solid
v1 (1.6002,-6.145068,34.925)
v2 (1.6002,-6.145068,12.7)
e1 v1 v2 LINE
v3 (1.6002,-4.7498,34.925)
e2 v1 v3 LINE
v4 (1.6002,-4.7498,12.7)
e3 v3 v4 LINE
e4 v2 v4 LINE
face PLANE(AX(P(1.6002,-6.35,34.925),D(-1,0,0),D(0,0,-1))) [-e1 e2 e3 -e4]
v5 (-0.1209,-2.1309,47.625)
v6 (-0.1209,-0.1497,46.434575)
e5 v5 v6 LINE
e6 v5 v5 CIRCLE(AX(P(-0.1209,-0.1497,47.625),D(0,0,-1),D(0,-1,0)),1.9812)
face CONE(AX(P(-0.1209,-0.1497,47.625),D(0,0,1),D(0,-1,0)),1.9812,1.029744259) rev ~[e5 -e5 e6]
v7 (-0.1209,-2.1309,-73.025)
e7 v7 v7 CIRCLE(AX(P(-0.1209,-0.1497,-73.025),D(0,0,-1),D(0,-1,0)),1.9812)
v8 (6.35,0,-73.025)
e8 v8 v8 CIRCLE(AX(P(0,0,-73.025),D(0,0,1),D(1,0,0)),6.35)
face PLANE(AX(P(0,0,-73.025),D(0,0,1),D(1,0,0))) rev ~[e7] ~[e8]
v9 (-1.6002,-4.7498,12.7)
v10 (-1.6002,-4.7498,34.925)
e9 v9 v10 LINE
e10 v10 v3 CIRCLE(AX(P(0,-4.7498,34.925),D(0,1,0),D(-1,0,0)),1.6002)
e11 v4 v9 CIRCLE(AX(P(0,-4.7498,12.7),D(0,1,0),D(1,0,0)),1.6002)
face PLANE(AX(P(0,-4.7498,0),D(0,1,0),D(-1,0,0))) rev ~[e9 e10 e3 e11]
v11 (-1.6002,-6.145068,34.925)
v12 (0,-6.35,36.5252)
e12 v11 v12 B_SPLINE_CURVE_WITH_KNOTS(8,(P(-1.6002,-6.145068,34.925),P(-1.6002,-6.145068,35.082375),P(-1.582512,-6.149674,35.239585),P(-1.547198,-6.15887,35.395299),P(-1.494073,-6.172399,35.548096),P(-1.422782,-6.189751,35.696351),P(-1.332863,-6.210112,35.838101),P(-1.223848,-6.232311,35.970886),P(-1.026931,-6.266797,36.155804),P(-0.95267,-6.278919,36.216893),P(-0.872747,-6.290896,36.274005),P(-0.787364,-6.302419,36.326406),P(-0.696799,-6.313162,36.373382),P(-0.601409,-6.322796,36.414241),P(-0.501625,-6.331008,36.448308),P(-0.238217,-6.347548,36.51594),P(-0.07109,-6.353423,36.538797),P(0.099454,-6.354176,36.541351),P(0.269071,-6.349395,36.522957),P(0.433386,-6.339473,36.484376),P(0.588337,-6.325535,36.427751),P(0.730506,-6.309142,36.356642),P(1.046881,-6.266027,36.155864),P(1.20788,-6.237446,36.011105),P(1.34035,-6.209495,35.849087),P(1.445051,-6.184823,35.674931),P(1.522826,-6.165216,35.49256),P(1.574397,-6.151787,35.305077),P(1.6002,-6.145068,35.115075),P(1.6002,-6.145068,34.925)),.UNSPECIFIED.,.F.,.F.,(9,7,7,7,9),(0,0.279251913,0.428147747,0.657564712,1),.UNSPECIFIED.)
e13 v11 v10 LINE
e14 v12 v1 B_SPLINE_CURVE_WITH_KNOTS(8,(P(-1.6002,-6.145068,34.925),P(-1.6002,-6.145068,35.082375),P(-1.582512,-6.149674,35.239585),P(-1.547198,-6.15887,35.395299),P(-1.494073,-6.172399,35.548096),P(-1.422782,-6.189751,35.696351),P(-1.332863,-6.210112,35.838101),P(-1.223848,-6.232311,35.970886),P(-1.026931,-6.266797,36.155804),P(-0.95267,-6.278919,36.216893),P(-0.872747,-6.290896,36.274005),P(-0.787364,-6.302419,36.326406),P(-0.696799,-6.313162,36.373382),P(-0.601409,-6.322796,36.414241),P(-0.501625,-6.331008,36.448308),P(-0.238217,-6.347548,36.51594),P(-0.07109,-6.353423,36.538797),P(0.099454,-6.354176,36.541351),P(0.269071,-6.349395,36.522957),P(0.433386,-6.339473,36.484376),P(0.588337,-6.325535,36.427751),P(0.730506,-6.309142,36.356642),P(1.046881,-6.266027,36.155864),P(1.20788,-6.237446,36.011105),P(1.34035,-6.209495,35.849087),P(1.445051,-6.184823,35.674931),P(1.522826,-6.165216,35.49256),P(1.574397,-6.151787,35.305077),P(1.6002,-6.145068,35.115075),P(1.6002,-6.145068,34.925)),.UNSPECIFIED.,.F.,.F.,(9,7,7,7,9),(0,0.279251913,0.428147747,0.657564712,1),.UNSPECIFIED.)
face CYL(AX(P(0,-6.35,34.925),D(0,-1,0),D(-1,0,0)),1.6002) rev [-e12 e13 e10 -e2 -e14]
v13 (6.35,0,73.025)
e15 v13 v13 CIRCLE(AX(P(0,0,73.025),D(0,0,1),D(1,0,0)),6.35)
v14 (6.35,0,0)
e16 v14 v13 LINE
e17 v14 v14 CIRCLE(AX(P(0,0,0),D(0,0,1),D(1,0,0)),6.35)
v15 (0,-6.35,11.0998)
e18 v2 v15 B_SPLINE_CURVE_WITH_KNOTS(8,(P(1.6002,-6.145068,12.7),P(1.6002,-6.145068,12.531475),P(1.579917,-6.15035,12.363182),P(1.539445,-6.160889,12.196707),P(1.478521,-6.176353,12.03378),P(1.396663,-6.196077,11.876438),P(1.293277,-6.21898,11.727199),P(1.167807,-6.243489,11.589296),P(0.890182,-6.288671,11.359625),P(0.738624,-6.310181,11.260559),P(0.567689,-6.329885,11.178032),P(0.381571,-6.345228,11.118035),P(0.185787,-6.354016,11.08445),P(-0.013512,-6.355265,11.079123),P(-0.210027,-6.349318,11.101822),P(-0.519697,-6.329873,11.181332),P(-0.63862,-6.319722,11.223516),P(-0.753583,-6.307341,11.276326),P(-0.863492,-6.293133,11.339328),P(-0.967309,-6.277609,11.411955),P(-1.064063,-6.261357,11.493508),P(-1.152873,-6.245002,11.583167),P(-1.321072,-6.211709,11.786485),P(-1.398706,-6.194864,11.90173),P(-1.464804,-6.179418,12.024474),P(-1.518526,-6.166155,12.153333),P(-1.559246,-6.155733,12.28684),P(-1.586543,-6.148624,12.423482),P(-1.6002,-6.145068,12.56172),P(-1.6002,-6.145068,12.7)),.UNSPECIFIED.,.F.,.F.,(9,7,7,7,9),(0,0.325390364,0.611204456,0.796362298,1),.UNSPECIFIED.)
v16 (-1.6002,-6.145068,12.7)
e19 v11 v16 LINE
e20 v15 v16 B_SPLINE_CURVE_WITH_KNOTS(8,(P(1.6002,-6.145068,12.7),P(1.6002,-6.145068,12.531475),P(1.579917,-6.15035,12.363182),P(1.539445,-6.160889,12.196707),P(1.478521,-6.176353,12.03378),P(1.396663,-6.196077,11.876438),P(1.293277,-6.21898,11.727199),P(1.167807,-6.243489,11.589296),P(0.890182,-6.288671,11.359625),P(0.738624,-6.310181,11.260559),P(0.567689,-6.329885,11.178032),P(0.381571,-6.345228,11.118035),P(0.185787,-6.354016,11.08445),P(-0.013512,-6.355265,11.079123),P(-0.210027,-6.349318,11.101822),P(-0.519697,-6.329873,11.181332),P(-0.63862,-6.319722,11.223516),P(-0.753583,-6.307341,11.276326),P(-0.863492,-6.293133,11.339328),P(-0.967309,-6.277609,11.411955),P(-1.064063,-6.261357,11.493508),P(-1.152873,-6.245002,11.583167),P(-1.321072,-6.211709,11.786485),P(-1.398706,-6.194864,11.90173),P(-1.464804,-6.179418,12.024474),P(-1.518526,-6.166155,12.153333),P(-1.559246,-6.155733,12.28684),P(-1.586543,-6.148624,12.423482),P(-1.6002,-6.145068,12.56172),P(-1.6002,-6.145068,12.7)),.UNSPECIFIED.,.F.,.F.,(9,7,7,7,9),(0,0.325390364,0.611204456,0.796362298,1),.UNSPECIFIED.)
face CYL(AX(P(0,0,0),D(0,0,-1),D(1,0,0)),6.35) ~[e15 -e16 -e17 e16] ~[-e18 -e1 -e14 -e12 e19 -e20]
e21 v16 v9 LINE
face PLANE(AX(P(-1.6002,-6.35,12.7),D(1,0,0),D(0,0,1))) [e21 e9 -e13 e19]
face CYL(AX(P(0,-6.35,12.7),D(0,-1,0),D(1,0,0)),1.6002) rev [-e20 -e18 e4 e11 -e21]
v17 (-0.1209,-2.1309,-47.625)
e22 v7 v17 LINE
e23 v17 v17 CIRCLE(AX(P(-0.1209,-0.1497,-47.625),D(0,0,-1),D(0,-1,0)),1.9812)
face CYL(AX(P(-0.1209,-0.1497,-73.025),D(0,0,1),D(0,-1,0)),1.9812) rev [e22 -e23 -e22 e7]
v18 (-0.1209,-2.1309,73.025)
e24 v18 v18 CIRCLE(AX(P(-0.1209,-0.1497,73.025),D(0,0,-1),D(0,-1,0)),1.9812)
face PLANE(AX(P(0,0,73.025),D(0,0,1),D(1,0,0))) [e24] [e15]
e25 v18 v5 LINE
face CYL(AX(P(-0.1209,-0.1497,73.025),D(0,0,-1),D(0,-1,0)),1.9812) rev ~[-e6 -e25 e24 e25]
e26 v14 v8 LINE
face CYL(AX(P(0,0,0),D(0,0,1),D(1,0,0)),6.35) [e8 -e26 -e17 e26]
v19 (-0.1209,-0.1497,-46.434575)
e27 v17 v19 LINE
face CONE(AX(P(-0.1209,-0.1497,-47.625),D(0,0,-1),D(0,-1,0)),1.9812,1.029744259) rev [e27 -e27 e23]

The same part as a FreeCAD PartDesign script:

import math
import FreeCAD as App
import Part
import Sketcher

V = App.Vector
Q = App.Units.Quantity

doc = App.newDocument("Part")
params = doc.addObject("Spreadsheet::Sheet", "Params")
for row, (alias, value) in enumerate([
    ("sketch1_diameter", "0.5 in"),
    ("pad1_length", "5.75 in"),
    ("sketch2_diameter", "0.156 in"),
    ("hole_diameter", "0.156 in"),
    ("hole_depth", "1 in"),
    ("sketch3_radius", "0.063 in"),
    ("sketch3_height", "0.875 in"),
    ("pocket1_length", "0.063 in"),
], start=1):
    params.set(f"A{row}", alias)
    params.set(f"B{row}", "=" + value)
    params.setAlias(f"B{row}", alias)

body = doc.addObject("PartDesign::Body", "Body")

# Sketch on XY plane
sketch1 = doc.addObject("Sketcher::SketchObject", "Sketch")
body.addObject(sketch1)
sketch1.AttachmentSupport = (doc.XY_Plane, [""])
sketch1.MapMode = "FlatFace"
sketch1.addGeometry(Part.Circle(V(0, 0, 0), V(0, 0, 1), 6), False)
sketch1.addConstraint([
    Sketcher.Constraint("Coincident", 0, 3, -1, 1),
    Sketcher.Constraint("Diameter", 0, Q("0.5 in")),
])
sketch1.setExpression("Constraints[1]", "Params.sketch1_diameter")
pad1 = doc.addObject("PartDesign::Pad", "Pad")
body.addObject(pad1)
pad1.Profile = sketch1
pad1.setExpression("Length", "Params.pad1_length")
pad1.Midplane = True

# Sketch on XY plane
sketch2 = doc.addObject("Sketcher::SketchObject", "Sketch001")
body.addObject(sketch2)
sketch2.AttachmentSupport = (doc.XY_Plane, [""])
sketch2.MapMode = "FlatFace"
sketch2.AttachmentOffset = App.Placement(V(0, 0, 2.875 * 25.4), App.Rotation())
sketch2.addGeometry(Part.Circle(V(-0.1, -0.1, 0), V(0, 0, 1), 2), False)
sketch2.addConstraint([
    Sketcher.Constraint("Diameter", 0, Q("0.156 in")),
    Sketcher.Constraint("DistanceY", 0, 3, -1, 1, Q("0.0059 in")),
    Sketcher.Constraint("DistanceX", 0, 3, -1, 1, 0.121),
])
sketch2.setExpression("Constraints[0]", "Params.sketch2_diameter")
doc.recompute()
hole = doc.addObject("PartDesign::Hole", "Hole")
body.addObject(hole)
hole.Profile = sketch2
hole.ThreadType = "None"
hole.setExpression("Diameter", "Params.hole_diameter")
hole.DepthType = "Dimension"
hole.setExpression("Depth", "Params.hole_depth")
hole.DrillPoint = "Angled"
hole.DrillPointAngle = 118
doc.recompute()

mirrored = doc.addObject("PartDesign::Mirrored", "Mirrored")
body.addObject(mirrored)
mirrored.Originals = [hole]
mirrored.MirrorPlane = (doc.XY_Plane, [""])
body.Tip = mirrored

# Sketch on XZ plane
sketch3 = doc.addObject("Sketcher::SketchObject", "Sketch002")
body.addObject(sketch3)
sketch3.AttachmentSupport = (doc.XZ_Plane, [""])
sketch3.MapMode = "FlatFace"
sketch3.AttachmentOffset = App.Placement(V(0, 0, 0.25 * 25.4), App.Rotation())
sketch3.addGeometry([
    Part.ArcOfCircle(Part.Circle(V(0, 34.9, 0), V(0, 0, 1), 1.6), math.radians(0), math.radians(180)),
    Part.LineSegment(V(1.6, 34.9, 0), V(1.6, 12.7, 0)),
    Part.ArcOfCircle(Part.Circle(V(0, 12.7, 0), V(0, 0, 1), 1.6), math.radians(180), math.radians(360)),
    Part.LineSegment(V(-1.6, 12.7, 0), V(-1.6, 34.9, 0)),
], False)
sketch3.addConstraint([
    Sketcher.Constraint("Tangent", 0, 1, 1, 1),
    Sketcher.Constraint("Tangent", 1, 2, 2, 2),
    Sketcher.Constraint("Tangent", 2, 1, 3, 1),
    Sketcher.Constraint("Tangent", 3, 2, 0, 2),
    Sketcher.Constraint("Vertical", 1),
    Sketcher.Constraint("Vertical", 3),
    Sketcher.Constraint("PointOnObject", 0, 3, -2),
    Sketcher.Constraint("Radius", 0, Q("0.063 in")),
    Sketcher.Constraint("DistanceY", 1, 2, 1, 1, Q("0.875 in")),
    Sketcher.Constraint("DistanceY", -1, 1, 2, 3, Q("0.5 in")),
])
sketch3.setExpression("Constraints[7]", "Params.sketch3_radius")
sketch3.setExpression("Constraints[8]", "Params.sketch3_height")
pocket1 = doc.addObject("PartDesign::Pocket", "Pocket")
body.addObject(pocket1)
pocket1.Profile = sketch3
pocket1.setExpression("Length", "Params.pocket1_length")

doc.recompute()
